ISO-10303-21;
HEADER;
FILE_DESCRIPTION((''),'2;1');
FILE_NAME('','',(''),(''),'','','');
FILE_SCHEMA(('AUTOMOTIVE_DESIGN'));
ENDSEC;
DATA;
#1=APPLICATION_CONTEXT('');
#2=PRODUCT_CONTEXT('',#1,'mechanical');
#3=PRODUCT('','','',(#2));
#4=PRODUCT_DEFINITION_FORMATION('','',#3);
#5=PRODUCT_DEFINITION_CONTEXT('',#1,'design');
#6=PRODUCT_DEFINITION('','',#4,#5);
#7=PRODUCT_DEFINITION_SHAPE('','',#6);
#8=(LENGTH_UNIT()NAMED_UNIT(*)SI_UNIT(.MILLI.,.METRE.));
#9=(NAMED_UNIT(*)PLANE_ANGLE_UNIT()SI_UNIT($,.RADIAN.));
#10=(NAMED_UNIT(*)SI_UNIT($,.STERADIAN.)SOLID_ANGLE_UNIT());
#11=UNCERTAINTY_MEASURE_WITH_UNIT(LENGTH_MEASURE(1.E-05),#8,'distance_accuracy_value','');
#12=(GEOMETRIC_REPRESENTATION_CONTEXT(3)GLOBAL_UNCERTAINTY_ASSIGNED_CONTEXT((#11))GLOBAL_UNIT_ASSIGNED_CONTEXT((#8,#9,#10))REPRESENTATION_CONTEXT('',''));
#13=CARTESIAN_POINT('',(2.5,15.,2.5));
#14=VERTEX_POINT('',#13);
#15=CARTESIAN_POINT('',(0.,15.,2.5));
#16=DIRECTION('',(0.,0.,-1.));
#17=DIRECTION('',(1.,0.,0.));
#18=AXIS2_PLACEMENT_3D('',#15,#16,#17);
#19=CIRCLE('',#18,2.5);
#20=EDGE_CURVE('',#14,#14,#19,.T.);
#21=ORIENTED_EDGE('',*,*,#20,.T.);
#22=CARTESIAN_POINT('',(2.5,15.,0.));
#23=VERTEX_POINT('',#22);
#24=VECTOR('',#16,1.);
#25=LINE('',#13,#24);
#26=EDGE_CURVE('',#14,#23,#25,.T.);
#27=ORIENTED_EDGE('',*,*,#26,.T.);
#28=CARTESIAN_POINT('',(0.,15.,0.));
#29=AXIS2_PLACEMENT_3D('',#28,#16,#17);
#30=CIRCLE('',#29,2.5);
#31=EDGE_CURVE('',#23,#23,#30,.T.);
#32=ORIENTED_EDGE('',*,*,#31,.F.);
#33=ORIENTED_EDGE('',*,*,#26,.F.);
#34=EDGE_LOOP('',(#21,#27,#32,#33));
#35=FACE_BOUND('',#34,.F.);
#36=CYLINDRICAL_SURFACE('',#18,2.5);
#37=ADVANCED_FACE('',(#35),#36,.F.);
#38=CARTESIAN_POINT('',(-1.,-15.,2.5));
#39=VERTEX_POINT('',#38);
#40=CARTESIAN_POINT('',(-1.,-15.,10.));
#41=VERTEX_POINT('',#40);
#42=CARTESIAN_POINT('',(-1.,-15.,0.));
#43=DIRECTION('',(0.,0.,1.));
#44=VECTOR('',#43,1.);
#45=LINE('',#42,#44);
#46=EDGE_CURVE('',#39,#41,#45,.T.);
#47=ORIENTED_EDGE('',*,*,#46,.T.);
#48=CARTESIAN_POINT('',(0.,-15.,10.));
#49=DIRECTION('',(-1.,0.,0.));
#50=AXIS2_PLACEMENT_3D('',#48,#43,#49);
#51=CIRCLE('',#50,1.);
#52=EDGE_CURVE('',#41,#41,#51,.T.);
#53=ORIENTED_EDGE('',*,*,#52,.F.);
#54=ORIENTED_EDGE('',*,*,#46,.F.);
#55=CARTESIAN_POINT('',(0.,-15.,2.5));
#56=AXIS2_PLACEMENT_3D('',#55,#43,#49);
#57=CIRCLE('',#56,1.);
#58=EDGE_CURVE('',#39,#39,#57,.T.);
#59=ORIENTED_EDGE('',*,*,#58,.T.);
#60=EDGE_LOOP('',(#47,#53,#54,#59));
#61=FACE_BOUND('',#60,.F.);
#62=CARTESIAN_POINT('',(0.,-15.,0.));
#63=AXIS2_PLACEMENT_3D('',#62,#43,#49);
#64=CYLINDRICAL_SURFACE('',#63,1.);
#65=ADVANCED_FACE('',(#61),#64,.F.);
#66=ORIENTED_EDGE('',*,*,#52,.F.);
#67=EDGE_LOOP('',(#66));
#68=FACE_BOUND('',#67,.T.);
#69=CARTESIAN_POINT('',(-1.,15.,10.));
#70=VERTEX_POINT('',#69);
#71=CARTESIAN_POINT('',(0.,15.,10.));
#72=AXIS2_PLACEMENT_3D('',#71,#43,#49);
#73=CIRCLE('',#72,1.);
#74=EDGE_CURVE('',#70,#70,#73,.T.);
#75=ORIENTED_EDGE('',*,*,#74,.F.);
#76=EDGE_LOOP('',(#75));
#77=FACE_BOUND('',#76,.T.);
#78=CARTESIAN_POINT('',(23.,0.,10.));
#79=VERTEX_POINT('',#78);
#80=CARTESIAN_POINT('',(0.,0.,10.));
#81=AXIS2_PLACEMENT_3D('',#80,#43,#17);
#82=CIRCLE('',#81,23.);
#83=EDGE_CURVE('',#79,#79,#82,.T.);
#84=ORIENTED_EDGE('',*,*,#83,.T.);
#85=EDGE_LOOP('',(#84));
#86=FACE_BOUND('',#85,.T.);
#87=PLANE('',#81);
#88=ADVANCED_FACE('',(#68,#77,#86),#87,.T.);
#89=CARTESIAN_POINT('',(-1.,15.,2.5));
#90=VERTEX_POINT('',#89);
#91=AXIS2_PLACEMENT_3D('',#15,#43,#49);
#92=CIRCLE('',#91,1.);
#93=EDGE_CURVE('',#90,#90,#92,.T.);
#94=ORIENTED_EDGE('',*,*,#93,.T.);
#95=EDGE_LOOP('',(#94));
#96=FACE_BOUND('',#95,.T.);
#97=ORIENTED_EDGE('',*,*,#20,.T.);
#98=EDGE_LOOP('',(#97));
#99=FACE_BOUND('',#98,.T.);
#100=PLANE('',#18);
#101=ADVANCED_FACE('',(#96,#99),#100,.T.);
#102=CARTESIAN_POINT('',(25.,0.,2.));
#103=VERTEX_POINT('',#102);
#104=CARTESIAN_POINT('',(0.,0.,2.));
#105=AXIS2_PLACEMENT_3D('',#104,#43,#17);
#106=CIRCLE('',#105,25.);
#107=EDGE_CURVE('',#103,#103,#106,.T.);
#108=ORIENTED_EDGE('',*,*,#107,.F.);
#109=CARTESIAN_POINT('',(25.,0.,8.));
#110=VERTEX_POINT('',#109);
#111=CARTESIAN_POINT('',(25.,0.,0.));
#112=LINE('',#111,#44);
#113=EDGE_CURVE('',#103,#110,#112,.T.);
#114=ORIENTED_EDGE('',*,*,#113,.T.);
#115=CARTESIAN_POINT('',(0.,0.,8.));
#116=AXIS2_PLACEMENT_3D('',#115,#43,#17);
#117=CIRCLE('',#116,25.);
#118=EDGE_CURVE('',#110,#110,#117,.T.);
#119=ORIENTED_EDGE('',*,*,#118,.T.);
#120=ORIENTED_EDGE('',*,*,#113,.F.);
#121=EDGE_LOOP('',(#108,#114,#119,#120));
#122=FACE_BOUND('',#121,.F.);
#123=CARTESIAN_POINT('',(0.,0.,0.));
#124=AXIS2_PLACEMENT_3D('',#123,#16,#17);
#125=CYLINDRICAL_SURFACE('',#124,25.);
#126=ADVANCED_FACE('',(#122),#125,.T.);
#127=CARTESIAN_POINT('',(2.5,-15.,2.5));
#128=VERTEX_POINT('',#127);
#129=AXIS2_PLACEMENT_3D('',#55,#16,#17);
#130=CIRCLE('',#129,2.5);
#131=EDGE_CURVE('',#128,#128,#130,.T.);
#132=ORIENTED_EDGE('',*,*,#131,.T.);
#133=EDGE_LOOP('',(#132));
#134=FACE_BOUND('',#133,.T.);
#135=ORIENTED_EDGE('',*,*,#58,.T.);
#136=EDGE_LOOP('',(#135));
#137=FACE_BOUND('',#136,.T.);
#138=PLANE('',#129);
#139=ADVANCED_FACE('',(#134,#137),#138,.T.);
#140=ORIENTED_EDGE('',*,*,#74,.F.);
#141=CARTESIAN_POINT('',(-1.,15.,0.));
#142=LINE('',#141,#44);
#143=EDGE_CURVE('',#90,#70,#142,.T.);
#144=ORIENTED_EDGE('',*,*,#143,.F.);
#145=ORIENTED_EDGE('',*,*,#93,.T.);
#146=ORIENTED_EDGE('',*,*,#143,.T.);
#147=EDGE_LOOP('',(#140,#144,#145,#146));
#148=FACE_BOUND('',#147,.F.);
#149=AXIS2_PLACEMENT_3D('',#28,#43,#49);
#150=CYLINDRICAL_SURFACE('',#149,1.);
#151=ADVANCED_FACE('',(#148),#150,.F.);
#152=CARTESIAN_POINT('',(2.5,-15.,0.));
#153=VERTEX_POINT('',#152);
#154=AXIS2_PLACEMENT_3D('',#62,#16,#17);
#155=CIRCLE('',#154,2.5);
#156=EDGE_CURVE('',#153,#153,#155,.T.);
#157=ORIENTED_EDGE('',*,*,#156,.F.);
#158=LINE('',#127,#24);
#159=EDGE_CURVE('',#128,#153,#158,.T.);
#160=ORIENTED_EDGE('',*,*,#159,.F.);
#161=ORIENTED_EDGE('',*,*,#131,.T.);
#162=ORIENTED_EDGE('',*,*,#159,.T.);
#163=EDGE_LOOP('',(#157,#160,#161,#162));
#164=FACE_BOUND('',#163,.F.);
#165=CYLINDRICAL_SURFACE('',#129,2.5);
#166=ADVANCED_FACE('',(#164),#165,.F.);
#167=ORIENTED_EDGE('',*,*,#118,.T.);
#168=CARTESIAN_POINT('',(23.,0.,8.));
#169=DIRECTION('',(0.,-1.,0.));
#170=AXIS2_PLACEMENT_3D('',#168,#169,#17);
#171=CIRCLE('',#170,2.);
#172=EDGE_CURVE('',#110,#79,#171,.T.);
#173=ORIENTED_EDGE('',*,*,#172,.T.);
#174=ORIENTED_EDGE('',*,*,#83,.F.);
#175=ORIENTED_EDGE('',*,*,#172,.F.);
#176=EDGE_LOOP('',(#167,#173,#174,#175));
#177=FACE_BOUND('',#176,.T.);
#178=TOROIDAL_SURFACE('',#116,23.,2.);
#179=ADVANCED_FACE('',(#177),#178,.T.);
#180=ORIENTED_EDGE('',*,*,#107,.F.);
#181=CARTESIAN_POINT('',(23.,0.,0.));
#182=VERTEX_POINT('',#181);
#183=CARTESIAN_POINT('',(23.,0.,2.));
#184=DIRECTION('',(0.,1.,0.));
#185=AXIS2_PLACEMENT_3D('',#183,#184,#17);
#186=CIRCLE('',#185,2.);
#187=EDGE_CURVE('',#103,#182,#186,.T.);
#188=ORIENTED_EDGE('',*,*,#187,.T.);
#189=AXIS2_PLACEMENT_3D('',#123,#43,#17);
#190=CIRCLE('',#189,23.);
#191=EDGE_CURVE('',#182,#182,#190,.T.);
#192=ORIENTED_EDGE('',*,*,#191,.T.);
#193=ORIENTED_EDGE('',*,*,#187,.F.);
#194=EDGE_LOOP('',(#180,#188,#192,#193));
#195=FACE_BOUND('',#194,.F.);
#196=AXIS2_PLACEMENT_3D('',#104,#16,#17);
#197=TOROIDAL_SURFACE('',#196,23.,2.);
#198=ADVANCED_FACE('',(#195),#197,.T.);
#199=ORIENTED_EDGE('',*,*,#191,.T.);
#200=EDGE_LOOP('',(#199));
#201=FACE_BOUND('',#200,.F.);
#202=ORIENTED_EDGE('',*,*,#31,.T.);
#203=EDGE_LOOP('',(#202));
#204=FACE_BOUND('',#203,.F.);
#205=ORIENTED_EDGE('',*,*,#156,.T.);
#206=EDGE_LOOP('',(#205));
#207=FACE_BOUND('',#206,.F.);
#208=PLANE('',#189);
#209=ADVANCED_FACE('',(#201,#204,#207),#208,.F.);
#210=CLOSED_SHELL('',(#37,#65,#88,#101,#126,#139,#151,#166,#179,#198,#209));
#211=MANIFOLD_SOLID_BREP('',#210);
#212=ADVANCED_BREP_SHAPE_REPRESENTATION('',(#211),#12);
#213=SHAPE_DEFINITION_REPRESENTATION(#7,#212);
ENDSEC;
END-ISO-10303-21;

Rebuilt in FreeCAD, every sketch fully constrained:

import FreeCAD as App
import Part
import Sketcher
Q = App.Units.Quantity


def edges_at(feature, points):
    """Names of the edges that pass closest to the given points."""
    edges = feature.Shape.Edges
    near = lambda p: min(range(len(edges)), key=lambda i: edges[i].distToShape(Part.Vertex(*p))[0])
    return sorted({f"Edge{near(p) + 1}" for p in points})

doc = App.newDocument("Part")
params = doc.addObject("Spreadsheet::Sheet", "Params")
for row, (alias, value) in enumerate([
    ("sketch1_diameter", "50 mm"),
    ("pad1_length", "10 mm"),
    ("fillet_radius", "2 mm"),
    ("sketch2_diameter", "2 mm"),
    ("hole_diameter", "2 mm"),
    ("hole_cbore_diameter", "5 mm"),
    ("hole_cbore_depth", "2.5 mm"),
], start=1):
    params.set(f"A{row}", alias)
    params.set(f"B{row}", "=" + value)
    params.setAlias(f"B{row}", alias)

body = doc.addObject("PartDesign::Body", "Body")

sketch1 = body.newObject("Sketcher::SketchObject", "Sketch")
sketch1.AttachmentSupport = (doc.getObject("XY_Plane"), [""])
sketch1.MapMode = "FlatFace"
sketch1.addGeometry(Part.Circle(App.Vector(0, 0, 0), App.Vector(0, 0, 1), 25), False)
sketch1.addConstraint(Sketcher.Constraint("Coincident", 0, 3, -1, 1))
sketch1.addConstraint(Sketcher.Constraint("Diameter", 0, Q("50 mm")))
sketch1.setExpression("Constraints[1]", "Params.sketch1_diameter")
pad1 = body.newObject("PartDesign::Pad", "Pad")
pad1.Profile = sketch1
pad1.setExpression("Length", "Params.pad1_length")
doc.recompute()

fillet = body.newObject("PartDesign::Fillet", "Fillet")
fillet.Base = (pad1, edges_at(pad1, [(-25, 0, 10), (-25, 0, 0)]))
fillet.setExpression("Radius", "Params.fillet_radius")

sketch2 = body.newObject("Sketcher::SketchObject", "Sketch001")
sketch2.AttachmentSupport = (doc.getObject("XY_Plane"), [""])
sketch2.MapMode = "FlatFace"
sketch2.addGeometry(Part.Circle(App.Vector(0, -15, 0), App.Vector(0, 0, 1), 1), False)
sketch2.addGeometry(Part.Circle(App.Vector(0, 15, 0), App.Vector(0, 0, 1), 1), False)
sketch2.addConstraint(Sketcher.Constraint("Equal", 0, 1))
sketch2.addConstraint(Sketcher.Constraint("Symmetric", 0, 3, 1, 3, -1, 1))
sketch2.addConstraint(Sketcher.Constraint("PointOnObject", 0, 3, -2))
sketch2.addConstraint(Sketcher.Constraint("Diameter", 0, Q("2 mm")))
sketch2.addConstraint(Sketcher.Constraint("DistanceY", 0, 3, -1, 1, Q("15 mm")))
sketch2.setExpression("Constraints[3]", "Params.sketch2_diameter")
doc.recompute()
hole = body.newObject("PartDesign::Hole", "Hole")
hole.Profile = sketch2
hole.ThreadType = "None"
hole.setExpression("Diameter", "Params.hole_diameter")
hole.DepthType = "ThroughAll"
hole.HoleCutType = "Counterbore"
hole.setExpression("HoleCutDiameter", "Params.hole_cbore_diameter")
hole.setExpression("HoleCutDepth", "Params.hole_cbore_depth")
hole.Reversed = True

doc.recompute()
